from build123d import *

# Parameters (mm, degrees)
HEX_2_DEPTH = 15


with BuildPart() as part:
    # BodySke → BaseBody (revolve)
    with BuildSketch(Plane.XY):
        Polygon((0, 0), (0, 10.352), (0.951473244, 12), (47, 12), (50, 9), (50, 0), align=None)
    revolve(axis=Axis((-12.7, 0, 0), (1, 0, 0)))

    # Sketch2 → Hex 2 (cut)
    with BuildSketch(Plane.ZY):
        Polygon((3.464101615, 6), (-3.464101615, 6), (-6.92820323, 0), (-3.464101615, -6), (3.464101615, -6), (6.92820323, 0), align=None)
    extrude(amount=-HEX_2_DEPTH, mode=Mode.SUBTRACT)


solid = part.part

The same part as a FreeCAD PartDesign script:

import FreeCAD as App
import Part
import Sketcher
Q = App.Units.Quantity


def add_polygon(sketch, points):
    """Adds a closed chain of lines whose ends are joined by coincident constraints."""
    first, n = sketch.GeometryCount, len(points)
    for a, b in zip(points, points[1:] + points[:1]):
        sketch.addGeometry(Part.LineSegment(App.Vector(*a, 0), App.Vector(*b, 0)), False)
    for i in range(n):
        sketch.addConstraint(Sketcher.Constraint("Coincident", first + i, 2, first + (i + 1) % n, 1))

doc = App.newDocument("Part")
body = doc.addObject("PartDesign::Body", "Body")

sketch1 = doc.addObject("Sketcher::SketchObject", "Sketch")
body.addObject(sketch1)
sketch1.AttachmentSupport = (doc.XY_Plane, [""])
sketch1.MapMode = "FlatFace"
add_polygon(sketch1, [(0, 10.4), (0, 0), (50, 0), (50, 9), (47, 12), (1, 12)])
sketch1.addConstraint(Sketcher.Constraint("Vertical", 0))
sketch1.addConstraint(Sketcher.Constraint("Horizontal", 1))
sketch1.addConstraint(Sketcher.Constraint("Vertical", 2))
sketch1.addConstraint(Sketcher.Constraint("Horizontal", 4))
sketch1.addConstraint(Sketcher.Constraint("Coincident", 0, 2, -1, 1))
sketch1.addConstraint(Sketcher.Constraint("DistanceX", 1, 1, 1, 2, 50.0))
sketch1.addConstraint(Sketcher.Constraint("DistanceY", 2, 1, 2, 2, 9.0))
sketch1.addConstraint(Sketcher.Constraint("Angle", 3, Q("135 deg")))
sketch1.addConstraint(Sketcher.Constraint("Angle", 5, Q("-120 deg")))
sketch1.addConstraint(Sketcher.Constraint("DistanceX", -1, 1, 3, 2, 47.0))
sketch1.addConstraint(Sketcher.Constraint("DistanceY", 0, 2, 0, 1, 10.352))
revolution = doc.addObject("PartDesign::Revolution", "Revolution")
body.addObject(revolution)
revolution.Profile = sketch1
revolution.ReferenceAxis = (sketch1, ["H_Axis"])
revolution.Angle = 360

sketch2 = doc.addObject("Sketcher::SketchObject", "Sketch001")
body.addObject(sketch2)
sketch2.AttachmentSupport = (doc.YZ_Plane, [""])
sketch2.MapMode = "FlatFace"
add_polygon(sketch2, [(6, 3), (6, -3), (0, -7), (-6, -3), (-6, 3), (0, 7)])
sketch2.addConstraint(Sketcher.Constraint("Vertical", 0))
sketch2.addConstraint(Sketcher.Constraint("Vertical", 3))
sketch2.addConstraint(Sketcher.Constraint("Symmetric", 0, 2, 3, 2, -1, 1))
sketch2.addConstraint(Sketcher.Constraint("Symmetric", 1, 2, 4, 2, -1, 1))
sketch2.addConstraint(Sketcher.Constraint("PointOnObject", 1, 2, -2))
sketch2.addConstraint(Sketcher.Constraint("Parallel", 2, 5))
sketch2.addConstraint(Sketcher.Constraint("Horizontal", 0, 2, 2, 2))
sketch2.addConstraint(Sketcher.Constraint("Angle", 1, Q("-150 deg")))
sketch2.addConstraint(Sketcher.Constraint("DistanceX", -1, 1, 0, 2, 6.0))
sketch2.addConstraint(Sketcher.Constraint("DistanceY", 0, 2, -1, 1, 3.464102))
pocket1 = doc.addObject("PartDesign::Pocket", "Pocket")
body.addObject(pocket1)
pocket1.Profile = sketch2
pocket1.Length = 15
pocket1.Reversed = True

doc.recompute()
